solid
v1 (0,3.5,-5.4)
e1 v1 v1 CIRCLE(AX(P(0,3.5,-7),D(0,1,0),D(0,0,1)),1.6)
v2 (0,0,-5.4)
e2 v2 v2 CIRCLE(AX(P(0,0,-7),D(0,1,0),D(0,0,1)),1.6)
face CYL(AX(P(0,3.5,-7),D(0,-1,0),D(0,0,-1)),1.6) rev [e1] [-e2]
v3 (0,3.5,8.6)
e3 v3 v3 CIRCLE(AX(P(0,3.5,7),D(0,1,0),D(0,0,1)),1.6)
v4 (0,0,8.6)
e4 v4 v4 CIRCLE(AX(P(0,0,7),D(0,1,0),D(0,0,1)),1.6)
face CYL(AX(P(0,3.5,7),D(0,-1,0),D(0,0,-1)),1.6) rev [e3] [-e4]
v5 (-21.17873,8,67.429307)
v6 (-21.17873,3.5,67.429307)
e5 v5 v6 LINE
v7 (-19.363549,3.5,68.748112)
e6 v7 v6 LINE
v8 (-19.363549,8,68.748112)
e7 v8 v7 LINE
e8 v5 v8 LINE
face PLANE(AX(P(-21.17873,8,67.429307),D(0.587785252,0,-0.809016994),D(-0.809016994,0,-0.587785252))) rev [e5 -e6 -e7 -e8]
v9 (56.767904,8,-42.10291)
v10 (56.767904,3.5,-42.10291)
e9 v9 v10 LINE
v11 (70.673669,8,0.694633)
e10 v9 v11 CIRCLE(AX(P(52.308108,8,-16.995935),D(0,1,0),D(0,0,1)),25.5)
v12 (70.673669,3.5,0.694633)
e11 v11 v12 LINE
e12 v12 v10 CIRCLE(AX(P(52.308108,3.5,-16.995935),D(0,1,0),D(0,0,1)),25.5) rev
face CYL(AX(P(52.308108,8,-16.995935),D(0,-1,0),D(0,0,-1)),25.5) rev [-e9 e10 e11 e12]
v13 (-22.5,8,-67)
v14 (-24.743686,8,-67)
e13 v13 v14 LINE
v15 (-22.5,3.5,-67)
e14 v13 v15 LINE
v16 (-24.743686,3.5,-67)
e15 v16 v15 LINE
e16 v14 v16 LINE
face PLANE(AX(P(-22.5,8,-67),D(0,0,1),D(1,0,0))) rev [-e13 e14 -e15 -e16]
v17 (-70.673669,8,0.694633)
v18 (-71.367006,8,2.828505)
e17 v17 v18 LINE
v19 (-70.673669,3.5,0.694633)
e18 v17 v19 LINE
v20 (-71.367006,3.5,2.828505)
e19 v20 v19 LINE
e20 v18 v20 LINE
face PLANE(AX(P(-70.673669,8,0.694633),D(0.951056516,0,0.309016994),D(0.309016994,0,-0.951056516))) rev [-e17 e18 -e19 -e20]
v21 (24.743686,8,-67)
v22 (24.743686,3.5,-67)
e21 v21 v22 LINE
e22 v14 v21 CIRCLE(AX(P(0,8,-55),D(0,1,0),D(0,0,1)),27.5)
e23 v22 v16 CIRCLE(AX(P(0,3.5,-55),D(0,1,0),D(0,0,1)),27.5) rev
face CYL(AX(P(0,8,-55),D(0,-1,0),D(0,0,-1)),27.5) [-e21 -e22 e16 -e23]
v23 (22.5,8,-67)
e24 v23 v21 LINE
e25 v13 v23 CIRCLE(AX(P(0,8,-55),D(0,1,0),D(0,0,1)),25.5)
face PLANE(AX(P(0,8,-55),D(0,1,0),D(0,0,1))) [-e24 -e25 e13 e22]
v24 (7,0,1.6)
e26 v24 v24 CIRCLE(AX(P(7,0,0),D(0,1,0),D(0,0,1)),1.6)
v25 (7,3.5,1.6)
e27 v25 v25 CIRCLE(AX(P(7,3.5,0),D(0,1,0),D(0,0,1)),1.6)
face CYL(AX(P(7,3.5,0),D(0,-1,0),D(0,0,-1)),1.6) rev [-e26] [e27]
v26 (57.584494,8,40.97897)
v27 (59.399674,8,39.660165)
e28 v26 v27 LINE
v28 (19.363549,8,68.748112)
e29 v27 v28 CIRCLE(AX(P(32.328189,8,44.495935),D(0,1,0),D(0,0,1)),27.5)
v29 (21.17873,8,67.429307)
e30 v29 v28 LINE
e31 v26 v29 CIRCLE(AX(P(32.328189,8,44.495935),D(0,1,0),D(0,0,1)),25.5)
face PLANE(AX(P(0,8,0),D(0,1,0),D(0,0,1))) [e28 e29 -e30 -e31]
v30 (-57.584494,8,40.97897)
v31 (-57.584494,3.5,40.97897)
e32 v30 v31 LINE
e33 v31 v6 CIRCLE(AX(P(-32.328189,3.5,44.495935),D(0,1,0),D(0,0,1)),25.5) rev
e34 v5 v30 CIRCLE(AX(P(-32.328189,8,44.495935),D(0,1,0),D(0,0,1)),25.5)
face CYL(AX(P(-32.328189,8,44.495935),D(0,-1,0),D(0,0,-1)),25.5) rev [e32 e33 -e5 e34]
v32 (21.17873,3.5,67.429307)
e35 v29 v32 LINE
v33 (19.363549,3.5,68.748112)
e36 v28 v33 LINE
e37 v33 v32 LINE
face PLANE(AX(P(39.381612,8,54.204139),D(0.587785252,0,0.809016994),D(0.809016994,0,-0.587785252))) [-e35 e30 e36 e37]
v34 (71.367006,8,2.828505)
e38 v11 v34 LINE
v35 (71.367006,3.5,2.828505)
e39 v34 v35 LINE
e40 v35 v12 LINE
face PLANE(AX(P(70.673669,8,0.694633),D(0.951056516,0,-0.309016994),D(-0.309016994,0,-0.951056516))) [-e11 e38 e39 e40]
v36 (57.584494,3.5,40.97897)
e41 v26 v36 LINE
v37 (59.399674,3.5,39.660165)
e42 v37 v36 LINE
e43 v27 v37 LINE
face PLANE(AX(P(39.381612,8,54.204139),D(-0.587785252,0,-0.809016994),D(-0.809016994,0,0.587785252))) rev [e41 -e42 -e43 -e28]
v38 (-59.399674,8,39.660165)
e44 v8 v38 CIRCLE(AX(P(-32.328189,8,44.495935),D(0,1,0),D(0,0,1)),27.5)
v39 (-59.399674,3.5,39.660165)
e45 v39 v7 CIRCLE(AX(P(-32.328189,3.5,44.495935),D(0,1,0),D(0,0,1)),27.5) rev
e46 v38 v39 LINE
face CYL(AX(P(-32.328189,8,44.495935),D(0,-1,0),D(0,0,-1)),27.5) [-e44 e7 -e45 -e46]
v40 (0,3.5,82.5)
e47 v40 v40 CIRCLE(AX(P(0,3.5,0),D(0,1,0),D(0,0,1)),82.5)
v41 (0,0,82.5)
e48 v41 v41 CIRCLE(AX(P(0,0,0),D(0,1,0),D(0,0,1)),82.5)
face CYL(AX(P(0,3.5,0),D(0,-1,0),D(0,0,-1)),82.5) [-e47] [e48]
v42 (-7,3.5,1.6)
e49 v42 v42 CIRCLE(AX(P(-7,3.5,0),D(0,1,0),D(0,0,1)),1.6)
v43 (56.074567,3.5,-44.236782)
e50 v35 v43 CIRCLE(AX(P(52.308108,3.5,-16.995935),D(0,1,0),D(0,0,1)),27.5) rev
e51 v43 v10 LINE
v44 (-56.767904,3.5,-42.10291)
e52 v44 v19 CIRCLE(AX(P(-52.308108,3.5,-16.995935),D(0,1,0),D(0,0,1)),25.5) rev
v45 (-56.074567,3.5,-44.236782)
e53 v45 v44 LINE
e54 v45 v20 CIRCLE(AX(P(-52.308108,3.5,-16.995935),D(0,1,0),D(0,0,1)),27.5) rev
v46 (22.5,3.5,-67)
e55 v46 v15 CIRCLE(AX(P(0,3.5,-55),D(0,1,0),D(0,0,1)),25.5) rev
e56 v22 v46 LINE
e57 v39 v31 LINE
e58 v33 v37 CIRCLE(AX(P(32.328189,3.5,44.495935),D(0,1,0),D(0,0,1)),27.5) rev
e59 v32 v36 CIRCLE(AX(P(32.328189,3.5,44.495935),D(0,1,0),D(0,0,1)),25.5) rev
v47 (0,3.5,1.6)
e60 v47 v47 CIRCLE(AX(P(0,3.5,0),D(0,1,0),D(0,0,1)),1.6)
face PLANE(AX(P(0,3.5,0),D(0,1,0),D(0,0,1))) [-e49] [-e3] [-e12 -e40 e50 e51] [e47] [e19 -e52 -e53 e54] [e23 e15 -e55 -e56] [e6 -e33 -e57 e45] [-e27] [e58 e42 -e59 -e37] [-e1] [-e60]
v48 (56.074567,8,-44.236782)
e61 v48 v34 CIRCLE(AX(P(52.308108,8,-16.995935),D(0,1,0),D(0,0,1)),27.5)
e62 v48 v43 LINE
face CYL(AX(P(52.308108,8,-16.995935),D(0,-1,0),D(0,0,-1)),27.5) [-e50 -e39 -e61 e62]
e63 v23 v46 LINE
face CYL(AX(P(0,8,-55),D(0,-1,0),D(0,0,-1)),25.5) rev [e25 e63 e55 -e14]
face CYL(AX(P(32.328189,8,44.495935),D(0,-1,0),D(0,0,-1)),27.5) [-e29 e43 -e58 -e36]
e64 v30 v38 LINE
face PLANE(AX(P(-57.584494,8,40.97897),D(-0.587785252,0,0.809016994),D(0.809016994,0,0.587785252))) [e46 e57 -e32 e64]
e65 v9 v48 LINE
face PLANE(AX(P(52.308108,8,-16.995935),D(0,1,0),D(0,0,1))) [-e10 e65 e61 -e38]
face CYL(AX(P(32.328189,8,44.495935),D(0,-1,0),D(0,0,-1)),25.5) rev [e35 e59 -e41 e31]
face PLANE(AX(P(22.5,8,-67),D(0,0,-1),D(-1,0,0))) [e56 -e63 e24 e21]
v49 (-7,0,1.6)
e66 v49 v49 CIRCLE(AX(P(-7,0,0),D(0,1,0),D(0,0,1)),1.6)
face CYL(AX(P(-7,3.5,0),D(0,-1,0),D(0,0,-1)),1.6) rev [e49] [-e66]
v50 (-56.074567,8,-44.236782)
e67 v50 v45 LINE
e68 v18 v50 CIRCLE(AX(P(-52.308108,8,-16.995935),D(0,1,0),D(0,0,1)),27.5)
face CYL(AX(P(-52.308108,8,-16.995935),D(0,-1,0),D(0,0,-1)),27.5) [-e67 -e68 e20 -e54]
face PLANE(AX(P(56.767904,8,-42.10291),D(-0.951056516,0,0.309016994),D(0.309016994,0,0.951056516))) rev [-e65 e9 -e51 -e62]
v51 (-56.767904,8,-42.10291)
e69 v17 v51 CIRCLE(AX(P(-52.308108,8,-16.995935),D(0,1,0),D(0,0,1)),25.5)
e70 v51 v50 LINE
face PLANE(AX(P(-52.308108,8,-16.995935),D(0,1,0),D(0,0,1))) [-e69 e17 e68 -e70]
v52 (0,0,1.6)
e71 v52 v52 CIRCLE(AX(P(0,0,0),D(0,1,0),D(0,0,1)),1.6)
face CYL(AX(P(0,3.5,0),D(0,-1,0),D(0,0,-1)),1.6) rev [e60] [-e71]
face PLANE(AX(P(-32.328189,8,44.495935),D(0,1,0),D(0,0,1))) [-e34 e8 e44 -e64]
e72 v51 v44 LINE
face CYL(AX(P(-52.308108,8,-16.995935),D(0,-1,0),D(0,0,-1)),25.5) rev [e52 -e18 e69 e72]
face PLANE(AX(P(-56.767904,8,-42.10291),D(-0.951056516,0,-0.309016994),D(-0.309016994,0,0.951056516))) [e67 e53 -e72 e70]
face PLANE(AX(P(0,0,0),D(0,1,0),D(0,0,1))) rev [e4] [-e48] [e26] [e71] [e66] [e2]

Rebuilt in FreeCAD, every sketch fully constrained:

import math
import FreeCAD as App
import Part
import Sketcher

V = App.Vector
Q = App.Units.Quantity

doc = App.newDocument("Part")
body = doc.addObject("PartDesign::Body", "Body")

# Sketch on XZ plane
sketch1 = doc.addObject("Sketcher::SketchObject", "Sketch")
body.addObject(sketch1)
sketch1.AttachmentSupport = (doc.XZ_Plane, [""])
sketch1.MapMode = "FlatFace"
sketch1.addGeometry([
    Part.Circle(V(0, 0, 0), V(0, 0, 1), 82.5),  # 0
    Part.Circle(V(0, -7, 0), V(0, 0, 1), 1.6),  # 1
    Part.Circle(V(-7, 0, 0), V(0, 0, 1), 1.6),  # 2
    Part.Circle(V(0, 0, 0), V(0, 0, 1), 1.6),  # 3
    Part.Circle(V(7, 0, 0), V(0, 0, 1), 1.6),  # 4
    Part.Circle(V(0, 7, 0), V(0, 0, 1), 1.6),  # 5
], False)
sketch1.addConstraint([
    Sketcher.Constraint("Coincident", 0, 3, -1, 1),
    Sketcher.Constraint("Coincident", 3, 3, -1, 1),
    Sketcher.Constraint("Equal", 1, 2),
    Sketcher.Constraint("Equal", 2, 3),
    Sketcher.Constraint("Equal", 3, 4),
    Sketcher.Constraint("Equal", 4, 5),
    Sketcher.Constraint("Symmetric", 2, 3, 4, 3, -1, 1),
    Sketcher.Constraint("Symmetric", 1, 3, 5, 3, -1, 1),
    Sketcher.Constraint("PointOnObject", 1, 3, -2),
    Sketcher.Constraint("PointOnObject", 2, 3, -1),
    Sketcher.Constraint("Diameter", 0, Q("165 mm")),
    Sketcher.Constraint("Diameter", 1, Q("3.2 mm")),
    Sketcher.Constraint("DistanceY", 1, 3, -1, 1, Q("7 mm")),
    Sketcher.Constraint("DistanceX", 2, 3, -1, 1, Q("7 mm")),
])
pad1 = doc.addObject("PartDesign::Pad", "Pad")
body.addObject(pad1)
pad1.Profile = sketch1
pad1.Length = 3.5
pad1.Reversed = True

# Sketch on XZ plane
sketch2 = doc.addObject("Sketcher::SketchObject", "Sketch001")
body.addObject(sketch2)
sketch2.AttachmentSupport = (doc.XZ_Plane, [""])
sketch2.MapMode = "FlatFace"
sketch2.addGeometry([
    Part.ArcOfCircle(Part.Circle(V(32.3, 44.5, 0), V(0, 0, 1), 25.5), math.radians(116), math.radians(352)),  # 0
    Part.LineSegment(V(57.6, 41, 0), V(59.4, 39.7, 0)),  # 1
    Part.ArcOfCircle(Part.Circle(V(32.3, 44.5, 0), V(0, 0, 1), 27.5), math.radians(118), math.radians(350)),  # 2
    Part.LineSegment(V(19.4, 68.7, 0), V(21.2, 67.4, 0)),  # 3
    Part.ArcOfCircle(Part.Circle(V(-52.3, -17, 0), V(0, 0, 1), 25.5), math.radians(-100), math.radians(136)),  # 4
    Part.LineSegment(V(-70.7, 0.7, 0), V(-71.4, 2.8, 0)),  # 5
    Part.ArcOfCircle(Part.Circle(V(-52.3, -17, 0), V(0, 0, 1), 27.5), math.radians(-98), math.radians(134)),  # 6
    Part.LineSegment(V(-56.1, -44.2, 0), V(-56.8, -42.1, 0)),  # 7
    Part.ArcOfCircle(Part.Circle(V(-32.3, 44.5, 0), V(0, 0, 1), 25.5), math.radians(-172), math.radians(64)),  # 8
    Part.LineSegment(V(-21.2, 67.4, 0), V(-19.4, 68.7, 0)),  # 9
    Part.ArcOfCircle(Part.Circle(V(-32.3, 44.5, 0), V(0, 0, 1), 27.5), math.radians(-170), math.radians(62)),  # 10
    Part.LineSegment(V(-59.4, 39.7, 0), V(-57.6, 41, 0)),  # 11
    Part.ArcOfCircle(Part.Circle(V(52.3, -17, 0), V(0, 0, 1), 25.5), math.radians(44), math.radians(280)),  # 12
    Part.LineSegment(V(56.8, -42.1, 0), V(56.1, -44.2, 0)),  # 13
    Part.ArcOfCircle(Part.Circle(V(52.3, -17, 0), V(0, 0, 1), 27.5), math.radians(46), math.radians(278)),  # 14
    Part.LineSegment(V(71.4, 2.8, 0), V(70.7, 0.7, 0)),  # 15
    Part.ArcOfCircle(Part.Circle(V(0, -55, 0), V(0, 0, 1), 25.5), math.radians(-28), math.radians(208)),  # 16
    Part.LineSegment(V(-22.5, -67, 0), V(-24.7, -67, 0)),  # 17
    Part.ArcOfCircle(Part.Circle(V(0, -55, 0), V(0, 0, 1), 27.5), math.radians(-26), math.radians(206)),  # 18
    Part.LineSegment(V(24.7, -67, 0), V(22.5, -67, 0)),  # 19
], False)
sketch2.addConstraint([
    Sketcher.Constraint("Coincident", 0, 2, 1, 1),
    Sketcher.Constraint("Coincident", 1, 2, 2, 2),
    Sketcher.Constraint("Coincident", 2, 1, 3, 1),
    Sketcher.Constraint("Coincident", 3, 2, 0, 1),
    Sketcher.Constraint("Coincident", 4, 2, 5, 1),
    Sketcher.Constraint("Coincident", 5, 2, 6, 2),
    Sketcher.Constraint("Coincident", 6, 1, 7, 1),
    Sketcher.Constraint("Coincident", 7, 2, 4, 1),
    Sketcher.Constraint("Coincident", 8, 2, 9, 1),
    Sketcher.Constraint("Coincident", 9, 2, 10, 2),
    Sketcher.Constraint("Coincident", 10, 1, 11, 1),
    Sketcher.Constraint("Coincident", 11, 2, 8, 1),
    Sketcher.Constraint("Coincident", 12, 2, 13, 1),
    Sketcher.Constraint("Coincident", 13, 2, 14, 2),
    Sketcher.Constraint("Coincident", 14, 1, 15, 1),
    Sketcher.Constraint("Coincident", 15, 2, 12, 1),
    Sketcher.Constraint("Coincident", 16, 2, 17, 1),
    Sketcher.Constraint("Coincident", 17, 2, 18, 2),
    Sketcher.Constraint("Coincident", 18, 1, 19, 1),
    Sketcher.Constraint("Coincident", 19, 2, 16, 1),
    Sketcher.Constraint("Horizontal", 17),
    Sketcher.Constraint("Horizontal", 19),
    Sketcher.Constraint("Coincident", 2, 3, 0, 3),
    Sketcher.Constraint("Coincident", 6, 3, 4, 3),
    Sketcher.Constraint("Coincident", 10, 3, 8, 3),
    Sketcher.Constraint("Coincident", 14, 3, 12, 3),
    Sketcher.Constraint("Coincident", 18, 3, 16, 3),
    Sketcher.Constraint("Equal", 0, 4),
    Sketcher.Constraint("Equal", 2, 6),
    Sketcher.Constraint("Equal", 4, 8),
    Sketcher.Constraint("Equal", 6, 10),
    Sketcher.Constraint("Equal", 8, 12),
    Sketcher.Constraint("Equal", 10, 14),
    Sketcher.Constraint("Equal", 12, 16),
    Sketcher.Constraint("Equal", 14, 18),
    Sketcher.Constraint("Symmetric", 0, 3, 8, 3, -2),
    Sketcher.Constraint("Symmetric", 4, 3, 12, 3, -2),
    Sketcher.Constraint("Symmetric", 17, 2, 18, 1, -2),
    Sketcher.Constraint("Parallel", 1, 3),
    Sketcher.Constraint("Parallel", 5, 7),
    Sketcher.Constraint("Parallel", 9, 11),
    Sketcher.Constraint("Parallel", 13, 15),
    Sketcher.Constraint("Horizontal", 3, 2, 8, 2),
    Sketcher.Constraint("Horizontal", 2, 1, 9, 2),
    Sketcher.Constraint("Horizontal", 1, 2, 10, 1),
    Sketcher.Constraint("Horizontal", 7, 2, 12, 2),
    Sketcher.Constraint("Horizontal", 6, 1, 13, 2),
    Sketcher.Constraint("Horizontal", 5, 2, 14, 1),
    Sketcher.Constraint("Equal", 1, 3),
    Sketcher.Constraint("Equal", 3, 5),
    Sketcher.Constraint("Equal", 5, 7),
    Sketcher.Constraint("Radius", 0, Q("25.5 mm")),
    Sketcher.Constraint("Radius", 2, Q("27.5 mm")),
    Sketcher.Constraint("Angle", 1, Q("-36 deg")),
    Sketcher.Constraint("Angle", 5, Q("108 deg")),
    Sketcher.Constraint("DistanceY", 16, 3, -1, 1, Q("55 mm")),
    Sketcher.Constraint("DistanceY", 16, 2, -1, 1, Q("67 mm")),
    Sketcher.Constraint("DistanceY", 12, 3, 1, 2, Q("56.6561 mm")),
    Sketcher.Constraint("DistanceY", 4, 2, 10, 3, Q("43.801302 mm")),
    Sketcher.Constraint("DistanceX", 9, 2, 2, 1, Q("38.727099 mm")),
    Sketcher.Constraint("DistanceX", 4, 3, -1, 1, Q("52.308108 mm")),
    Sketcher.Constraint("DistanceY", -1, 1, 0, 2, Q("40.97897 mm")),
])
pad2 = doc.addObject("PartDesign::Pad", "Pad001")
body.addObject(pad2)
pad2.Profile = sketch2
pad2.Length = 8
pad2.Reversed = True

doc.recompute()
